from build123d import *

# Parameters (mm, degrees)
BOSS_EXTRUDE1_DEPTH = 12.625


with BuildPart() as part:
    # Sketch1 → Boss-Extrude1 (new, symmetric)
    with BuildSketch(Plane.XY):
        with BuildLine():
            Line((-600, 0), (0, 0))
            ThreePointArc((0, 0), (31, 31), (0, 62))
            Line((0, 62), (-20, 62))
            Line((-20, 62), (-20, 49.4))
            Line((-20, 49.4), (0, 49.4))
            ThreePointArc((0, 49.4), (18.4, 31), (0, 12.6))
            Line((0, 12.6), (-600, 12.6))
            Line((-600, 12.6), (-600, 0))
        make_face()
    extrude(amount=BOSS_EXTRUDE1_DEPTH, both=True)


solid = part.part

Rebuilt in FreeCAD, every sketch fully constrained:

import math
import FreeCAD as App
import Part
import Sketcher

V = App.Vector

doc = App.newDocument("Part")
body = doc.addObject("PartDesign::Body", "Body")

# Sketch on XY plane
sketch1 = body.newObject("Sketcher::SketchObject", "Sketch")
sketch1.AttachmentSupport = (doc.getObject("XY_Plane"), [""])
sketch1.MapMode = "FlatFace"
sketch1.addGeometry(Part.LineSegment(V(-600, 0, 0), V(0, 0, 0)), False)
sketch1.addGeometry(Part.ArcOfCircle(Part.Circle(V(0, 31, 0), V(0, 0, 1), 31), math.radians(-90), math.radians(90)), False)
sketch1.addGeometry(Part.LineSegment(V(0, 62, 0), V(-20, 62, 0)), False)
sketch1.addGeometry(Part.LineSegment(V(-20, 62, 0), V(-20, 49, 0)), False)
sketch1.addGeometry(Part.LineSegment(V(-20, 49, 0), V(0, 49, 0)), False)
sketch1.addGeometry(Part.ArcOfCircle(Part.Circle(V(0, 31, 0), V(0, 0, 1), 18), math.radians(-90), math.radians(90)), False)
sketch1.addGeometry(Part.LineSegment(V(0, 13, 0), V(-600, 13, 0)), False)
sketch1.addGeometry(Part.LineSegment(V(-600, 13, 0), V(-600, 0, 0)), False)
sketch1.addConstraint(Sketcher.Constraint("Tangent", 0, 2, 1, 1))
sketch1.addConstraint(Sketcher.Constraint("Tangent", 1, 2, 2, 1))
sketch1.addConstraint(Sketcher.Constraint("Coincident", 2, 2, 3, 1))
sketch1.addConstraint(Sketcher.Constraint("Coincident", 3, 2, 4, 1))
sketch1.addConstraint(Sketcher.Constraint("Tangent", 4, 2, 5, 2))
sketch1.addConstraint(Sketcher.Constraint("Tangent", 5, 1, 6, 1))
sketch1.addConstraint(Sketcher.Constraint("Coincident", 6, 2, 7, 1))
sketch1.addConstraint(Sketcher.Constraint("Coincident", 7, 2, 0, 1))
sketch1.addConstraint(Sketcher.Constraint("Horizontal", 0))
sketch1.addConstraint(Sketcher.Constraint("Horizontal", 2))
sketch1.addConstraint(Sketcher.Constraint("Vertical", 3))
sketch1.addConstraint(Sketcher.Constraint("Horizontal", 4))
sketch1.addConstraint(Sketcher.Constraint("Horizontal", 6))
sketch1.addConstraint(Sketcher.Constraint("Vertical", 7))
sketch1.addConstraint(Sketcher.Constraint("Coincident", 0, 2, -1, 1))
sketch1.addConstraint(Sketcher.Constraint("Coincident", 5, 3, 1, 3))
sketch1.addConstraint(Sketcher.Constraint("Radius", 1, 31.0))
sketch1.addConstraint(Sketcher.Constraint("Radius", 5, 18.4))
sketch1.addConstraint(Sketcher.Constraint("DistanceX", 0, 1, 0, 2, 600.0))
sketch1.addConstraint(Sketcher.Constraint("DistanceX", 2, 2, 2, 1, 20.0))
pad1 = body.newObject("PartDesign::Pad", "Pad")
pad1.Profile = sketch1
pad1.Length = 25.25
pad1.Midplane = True

doc.recompute()
